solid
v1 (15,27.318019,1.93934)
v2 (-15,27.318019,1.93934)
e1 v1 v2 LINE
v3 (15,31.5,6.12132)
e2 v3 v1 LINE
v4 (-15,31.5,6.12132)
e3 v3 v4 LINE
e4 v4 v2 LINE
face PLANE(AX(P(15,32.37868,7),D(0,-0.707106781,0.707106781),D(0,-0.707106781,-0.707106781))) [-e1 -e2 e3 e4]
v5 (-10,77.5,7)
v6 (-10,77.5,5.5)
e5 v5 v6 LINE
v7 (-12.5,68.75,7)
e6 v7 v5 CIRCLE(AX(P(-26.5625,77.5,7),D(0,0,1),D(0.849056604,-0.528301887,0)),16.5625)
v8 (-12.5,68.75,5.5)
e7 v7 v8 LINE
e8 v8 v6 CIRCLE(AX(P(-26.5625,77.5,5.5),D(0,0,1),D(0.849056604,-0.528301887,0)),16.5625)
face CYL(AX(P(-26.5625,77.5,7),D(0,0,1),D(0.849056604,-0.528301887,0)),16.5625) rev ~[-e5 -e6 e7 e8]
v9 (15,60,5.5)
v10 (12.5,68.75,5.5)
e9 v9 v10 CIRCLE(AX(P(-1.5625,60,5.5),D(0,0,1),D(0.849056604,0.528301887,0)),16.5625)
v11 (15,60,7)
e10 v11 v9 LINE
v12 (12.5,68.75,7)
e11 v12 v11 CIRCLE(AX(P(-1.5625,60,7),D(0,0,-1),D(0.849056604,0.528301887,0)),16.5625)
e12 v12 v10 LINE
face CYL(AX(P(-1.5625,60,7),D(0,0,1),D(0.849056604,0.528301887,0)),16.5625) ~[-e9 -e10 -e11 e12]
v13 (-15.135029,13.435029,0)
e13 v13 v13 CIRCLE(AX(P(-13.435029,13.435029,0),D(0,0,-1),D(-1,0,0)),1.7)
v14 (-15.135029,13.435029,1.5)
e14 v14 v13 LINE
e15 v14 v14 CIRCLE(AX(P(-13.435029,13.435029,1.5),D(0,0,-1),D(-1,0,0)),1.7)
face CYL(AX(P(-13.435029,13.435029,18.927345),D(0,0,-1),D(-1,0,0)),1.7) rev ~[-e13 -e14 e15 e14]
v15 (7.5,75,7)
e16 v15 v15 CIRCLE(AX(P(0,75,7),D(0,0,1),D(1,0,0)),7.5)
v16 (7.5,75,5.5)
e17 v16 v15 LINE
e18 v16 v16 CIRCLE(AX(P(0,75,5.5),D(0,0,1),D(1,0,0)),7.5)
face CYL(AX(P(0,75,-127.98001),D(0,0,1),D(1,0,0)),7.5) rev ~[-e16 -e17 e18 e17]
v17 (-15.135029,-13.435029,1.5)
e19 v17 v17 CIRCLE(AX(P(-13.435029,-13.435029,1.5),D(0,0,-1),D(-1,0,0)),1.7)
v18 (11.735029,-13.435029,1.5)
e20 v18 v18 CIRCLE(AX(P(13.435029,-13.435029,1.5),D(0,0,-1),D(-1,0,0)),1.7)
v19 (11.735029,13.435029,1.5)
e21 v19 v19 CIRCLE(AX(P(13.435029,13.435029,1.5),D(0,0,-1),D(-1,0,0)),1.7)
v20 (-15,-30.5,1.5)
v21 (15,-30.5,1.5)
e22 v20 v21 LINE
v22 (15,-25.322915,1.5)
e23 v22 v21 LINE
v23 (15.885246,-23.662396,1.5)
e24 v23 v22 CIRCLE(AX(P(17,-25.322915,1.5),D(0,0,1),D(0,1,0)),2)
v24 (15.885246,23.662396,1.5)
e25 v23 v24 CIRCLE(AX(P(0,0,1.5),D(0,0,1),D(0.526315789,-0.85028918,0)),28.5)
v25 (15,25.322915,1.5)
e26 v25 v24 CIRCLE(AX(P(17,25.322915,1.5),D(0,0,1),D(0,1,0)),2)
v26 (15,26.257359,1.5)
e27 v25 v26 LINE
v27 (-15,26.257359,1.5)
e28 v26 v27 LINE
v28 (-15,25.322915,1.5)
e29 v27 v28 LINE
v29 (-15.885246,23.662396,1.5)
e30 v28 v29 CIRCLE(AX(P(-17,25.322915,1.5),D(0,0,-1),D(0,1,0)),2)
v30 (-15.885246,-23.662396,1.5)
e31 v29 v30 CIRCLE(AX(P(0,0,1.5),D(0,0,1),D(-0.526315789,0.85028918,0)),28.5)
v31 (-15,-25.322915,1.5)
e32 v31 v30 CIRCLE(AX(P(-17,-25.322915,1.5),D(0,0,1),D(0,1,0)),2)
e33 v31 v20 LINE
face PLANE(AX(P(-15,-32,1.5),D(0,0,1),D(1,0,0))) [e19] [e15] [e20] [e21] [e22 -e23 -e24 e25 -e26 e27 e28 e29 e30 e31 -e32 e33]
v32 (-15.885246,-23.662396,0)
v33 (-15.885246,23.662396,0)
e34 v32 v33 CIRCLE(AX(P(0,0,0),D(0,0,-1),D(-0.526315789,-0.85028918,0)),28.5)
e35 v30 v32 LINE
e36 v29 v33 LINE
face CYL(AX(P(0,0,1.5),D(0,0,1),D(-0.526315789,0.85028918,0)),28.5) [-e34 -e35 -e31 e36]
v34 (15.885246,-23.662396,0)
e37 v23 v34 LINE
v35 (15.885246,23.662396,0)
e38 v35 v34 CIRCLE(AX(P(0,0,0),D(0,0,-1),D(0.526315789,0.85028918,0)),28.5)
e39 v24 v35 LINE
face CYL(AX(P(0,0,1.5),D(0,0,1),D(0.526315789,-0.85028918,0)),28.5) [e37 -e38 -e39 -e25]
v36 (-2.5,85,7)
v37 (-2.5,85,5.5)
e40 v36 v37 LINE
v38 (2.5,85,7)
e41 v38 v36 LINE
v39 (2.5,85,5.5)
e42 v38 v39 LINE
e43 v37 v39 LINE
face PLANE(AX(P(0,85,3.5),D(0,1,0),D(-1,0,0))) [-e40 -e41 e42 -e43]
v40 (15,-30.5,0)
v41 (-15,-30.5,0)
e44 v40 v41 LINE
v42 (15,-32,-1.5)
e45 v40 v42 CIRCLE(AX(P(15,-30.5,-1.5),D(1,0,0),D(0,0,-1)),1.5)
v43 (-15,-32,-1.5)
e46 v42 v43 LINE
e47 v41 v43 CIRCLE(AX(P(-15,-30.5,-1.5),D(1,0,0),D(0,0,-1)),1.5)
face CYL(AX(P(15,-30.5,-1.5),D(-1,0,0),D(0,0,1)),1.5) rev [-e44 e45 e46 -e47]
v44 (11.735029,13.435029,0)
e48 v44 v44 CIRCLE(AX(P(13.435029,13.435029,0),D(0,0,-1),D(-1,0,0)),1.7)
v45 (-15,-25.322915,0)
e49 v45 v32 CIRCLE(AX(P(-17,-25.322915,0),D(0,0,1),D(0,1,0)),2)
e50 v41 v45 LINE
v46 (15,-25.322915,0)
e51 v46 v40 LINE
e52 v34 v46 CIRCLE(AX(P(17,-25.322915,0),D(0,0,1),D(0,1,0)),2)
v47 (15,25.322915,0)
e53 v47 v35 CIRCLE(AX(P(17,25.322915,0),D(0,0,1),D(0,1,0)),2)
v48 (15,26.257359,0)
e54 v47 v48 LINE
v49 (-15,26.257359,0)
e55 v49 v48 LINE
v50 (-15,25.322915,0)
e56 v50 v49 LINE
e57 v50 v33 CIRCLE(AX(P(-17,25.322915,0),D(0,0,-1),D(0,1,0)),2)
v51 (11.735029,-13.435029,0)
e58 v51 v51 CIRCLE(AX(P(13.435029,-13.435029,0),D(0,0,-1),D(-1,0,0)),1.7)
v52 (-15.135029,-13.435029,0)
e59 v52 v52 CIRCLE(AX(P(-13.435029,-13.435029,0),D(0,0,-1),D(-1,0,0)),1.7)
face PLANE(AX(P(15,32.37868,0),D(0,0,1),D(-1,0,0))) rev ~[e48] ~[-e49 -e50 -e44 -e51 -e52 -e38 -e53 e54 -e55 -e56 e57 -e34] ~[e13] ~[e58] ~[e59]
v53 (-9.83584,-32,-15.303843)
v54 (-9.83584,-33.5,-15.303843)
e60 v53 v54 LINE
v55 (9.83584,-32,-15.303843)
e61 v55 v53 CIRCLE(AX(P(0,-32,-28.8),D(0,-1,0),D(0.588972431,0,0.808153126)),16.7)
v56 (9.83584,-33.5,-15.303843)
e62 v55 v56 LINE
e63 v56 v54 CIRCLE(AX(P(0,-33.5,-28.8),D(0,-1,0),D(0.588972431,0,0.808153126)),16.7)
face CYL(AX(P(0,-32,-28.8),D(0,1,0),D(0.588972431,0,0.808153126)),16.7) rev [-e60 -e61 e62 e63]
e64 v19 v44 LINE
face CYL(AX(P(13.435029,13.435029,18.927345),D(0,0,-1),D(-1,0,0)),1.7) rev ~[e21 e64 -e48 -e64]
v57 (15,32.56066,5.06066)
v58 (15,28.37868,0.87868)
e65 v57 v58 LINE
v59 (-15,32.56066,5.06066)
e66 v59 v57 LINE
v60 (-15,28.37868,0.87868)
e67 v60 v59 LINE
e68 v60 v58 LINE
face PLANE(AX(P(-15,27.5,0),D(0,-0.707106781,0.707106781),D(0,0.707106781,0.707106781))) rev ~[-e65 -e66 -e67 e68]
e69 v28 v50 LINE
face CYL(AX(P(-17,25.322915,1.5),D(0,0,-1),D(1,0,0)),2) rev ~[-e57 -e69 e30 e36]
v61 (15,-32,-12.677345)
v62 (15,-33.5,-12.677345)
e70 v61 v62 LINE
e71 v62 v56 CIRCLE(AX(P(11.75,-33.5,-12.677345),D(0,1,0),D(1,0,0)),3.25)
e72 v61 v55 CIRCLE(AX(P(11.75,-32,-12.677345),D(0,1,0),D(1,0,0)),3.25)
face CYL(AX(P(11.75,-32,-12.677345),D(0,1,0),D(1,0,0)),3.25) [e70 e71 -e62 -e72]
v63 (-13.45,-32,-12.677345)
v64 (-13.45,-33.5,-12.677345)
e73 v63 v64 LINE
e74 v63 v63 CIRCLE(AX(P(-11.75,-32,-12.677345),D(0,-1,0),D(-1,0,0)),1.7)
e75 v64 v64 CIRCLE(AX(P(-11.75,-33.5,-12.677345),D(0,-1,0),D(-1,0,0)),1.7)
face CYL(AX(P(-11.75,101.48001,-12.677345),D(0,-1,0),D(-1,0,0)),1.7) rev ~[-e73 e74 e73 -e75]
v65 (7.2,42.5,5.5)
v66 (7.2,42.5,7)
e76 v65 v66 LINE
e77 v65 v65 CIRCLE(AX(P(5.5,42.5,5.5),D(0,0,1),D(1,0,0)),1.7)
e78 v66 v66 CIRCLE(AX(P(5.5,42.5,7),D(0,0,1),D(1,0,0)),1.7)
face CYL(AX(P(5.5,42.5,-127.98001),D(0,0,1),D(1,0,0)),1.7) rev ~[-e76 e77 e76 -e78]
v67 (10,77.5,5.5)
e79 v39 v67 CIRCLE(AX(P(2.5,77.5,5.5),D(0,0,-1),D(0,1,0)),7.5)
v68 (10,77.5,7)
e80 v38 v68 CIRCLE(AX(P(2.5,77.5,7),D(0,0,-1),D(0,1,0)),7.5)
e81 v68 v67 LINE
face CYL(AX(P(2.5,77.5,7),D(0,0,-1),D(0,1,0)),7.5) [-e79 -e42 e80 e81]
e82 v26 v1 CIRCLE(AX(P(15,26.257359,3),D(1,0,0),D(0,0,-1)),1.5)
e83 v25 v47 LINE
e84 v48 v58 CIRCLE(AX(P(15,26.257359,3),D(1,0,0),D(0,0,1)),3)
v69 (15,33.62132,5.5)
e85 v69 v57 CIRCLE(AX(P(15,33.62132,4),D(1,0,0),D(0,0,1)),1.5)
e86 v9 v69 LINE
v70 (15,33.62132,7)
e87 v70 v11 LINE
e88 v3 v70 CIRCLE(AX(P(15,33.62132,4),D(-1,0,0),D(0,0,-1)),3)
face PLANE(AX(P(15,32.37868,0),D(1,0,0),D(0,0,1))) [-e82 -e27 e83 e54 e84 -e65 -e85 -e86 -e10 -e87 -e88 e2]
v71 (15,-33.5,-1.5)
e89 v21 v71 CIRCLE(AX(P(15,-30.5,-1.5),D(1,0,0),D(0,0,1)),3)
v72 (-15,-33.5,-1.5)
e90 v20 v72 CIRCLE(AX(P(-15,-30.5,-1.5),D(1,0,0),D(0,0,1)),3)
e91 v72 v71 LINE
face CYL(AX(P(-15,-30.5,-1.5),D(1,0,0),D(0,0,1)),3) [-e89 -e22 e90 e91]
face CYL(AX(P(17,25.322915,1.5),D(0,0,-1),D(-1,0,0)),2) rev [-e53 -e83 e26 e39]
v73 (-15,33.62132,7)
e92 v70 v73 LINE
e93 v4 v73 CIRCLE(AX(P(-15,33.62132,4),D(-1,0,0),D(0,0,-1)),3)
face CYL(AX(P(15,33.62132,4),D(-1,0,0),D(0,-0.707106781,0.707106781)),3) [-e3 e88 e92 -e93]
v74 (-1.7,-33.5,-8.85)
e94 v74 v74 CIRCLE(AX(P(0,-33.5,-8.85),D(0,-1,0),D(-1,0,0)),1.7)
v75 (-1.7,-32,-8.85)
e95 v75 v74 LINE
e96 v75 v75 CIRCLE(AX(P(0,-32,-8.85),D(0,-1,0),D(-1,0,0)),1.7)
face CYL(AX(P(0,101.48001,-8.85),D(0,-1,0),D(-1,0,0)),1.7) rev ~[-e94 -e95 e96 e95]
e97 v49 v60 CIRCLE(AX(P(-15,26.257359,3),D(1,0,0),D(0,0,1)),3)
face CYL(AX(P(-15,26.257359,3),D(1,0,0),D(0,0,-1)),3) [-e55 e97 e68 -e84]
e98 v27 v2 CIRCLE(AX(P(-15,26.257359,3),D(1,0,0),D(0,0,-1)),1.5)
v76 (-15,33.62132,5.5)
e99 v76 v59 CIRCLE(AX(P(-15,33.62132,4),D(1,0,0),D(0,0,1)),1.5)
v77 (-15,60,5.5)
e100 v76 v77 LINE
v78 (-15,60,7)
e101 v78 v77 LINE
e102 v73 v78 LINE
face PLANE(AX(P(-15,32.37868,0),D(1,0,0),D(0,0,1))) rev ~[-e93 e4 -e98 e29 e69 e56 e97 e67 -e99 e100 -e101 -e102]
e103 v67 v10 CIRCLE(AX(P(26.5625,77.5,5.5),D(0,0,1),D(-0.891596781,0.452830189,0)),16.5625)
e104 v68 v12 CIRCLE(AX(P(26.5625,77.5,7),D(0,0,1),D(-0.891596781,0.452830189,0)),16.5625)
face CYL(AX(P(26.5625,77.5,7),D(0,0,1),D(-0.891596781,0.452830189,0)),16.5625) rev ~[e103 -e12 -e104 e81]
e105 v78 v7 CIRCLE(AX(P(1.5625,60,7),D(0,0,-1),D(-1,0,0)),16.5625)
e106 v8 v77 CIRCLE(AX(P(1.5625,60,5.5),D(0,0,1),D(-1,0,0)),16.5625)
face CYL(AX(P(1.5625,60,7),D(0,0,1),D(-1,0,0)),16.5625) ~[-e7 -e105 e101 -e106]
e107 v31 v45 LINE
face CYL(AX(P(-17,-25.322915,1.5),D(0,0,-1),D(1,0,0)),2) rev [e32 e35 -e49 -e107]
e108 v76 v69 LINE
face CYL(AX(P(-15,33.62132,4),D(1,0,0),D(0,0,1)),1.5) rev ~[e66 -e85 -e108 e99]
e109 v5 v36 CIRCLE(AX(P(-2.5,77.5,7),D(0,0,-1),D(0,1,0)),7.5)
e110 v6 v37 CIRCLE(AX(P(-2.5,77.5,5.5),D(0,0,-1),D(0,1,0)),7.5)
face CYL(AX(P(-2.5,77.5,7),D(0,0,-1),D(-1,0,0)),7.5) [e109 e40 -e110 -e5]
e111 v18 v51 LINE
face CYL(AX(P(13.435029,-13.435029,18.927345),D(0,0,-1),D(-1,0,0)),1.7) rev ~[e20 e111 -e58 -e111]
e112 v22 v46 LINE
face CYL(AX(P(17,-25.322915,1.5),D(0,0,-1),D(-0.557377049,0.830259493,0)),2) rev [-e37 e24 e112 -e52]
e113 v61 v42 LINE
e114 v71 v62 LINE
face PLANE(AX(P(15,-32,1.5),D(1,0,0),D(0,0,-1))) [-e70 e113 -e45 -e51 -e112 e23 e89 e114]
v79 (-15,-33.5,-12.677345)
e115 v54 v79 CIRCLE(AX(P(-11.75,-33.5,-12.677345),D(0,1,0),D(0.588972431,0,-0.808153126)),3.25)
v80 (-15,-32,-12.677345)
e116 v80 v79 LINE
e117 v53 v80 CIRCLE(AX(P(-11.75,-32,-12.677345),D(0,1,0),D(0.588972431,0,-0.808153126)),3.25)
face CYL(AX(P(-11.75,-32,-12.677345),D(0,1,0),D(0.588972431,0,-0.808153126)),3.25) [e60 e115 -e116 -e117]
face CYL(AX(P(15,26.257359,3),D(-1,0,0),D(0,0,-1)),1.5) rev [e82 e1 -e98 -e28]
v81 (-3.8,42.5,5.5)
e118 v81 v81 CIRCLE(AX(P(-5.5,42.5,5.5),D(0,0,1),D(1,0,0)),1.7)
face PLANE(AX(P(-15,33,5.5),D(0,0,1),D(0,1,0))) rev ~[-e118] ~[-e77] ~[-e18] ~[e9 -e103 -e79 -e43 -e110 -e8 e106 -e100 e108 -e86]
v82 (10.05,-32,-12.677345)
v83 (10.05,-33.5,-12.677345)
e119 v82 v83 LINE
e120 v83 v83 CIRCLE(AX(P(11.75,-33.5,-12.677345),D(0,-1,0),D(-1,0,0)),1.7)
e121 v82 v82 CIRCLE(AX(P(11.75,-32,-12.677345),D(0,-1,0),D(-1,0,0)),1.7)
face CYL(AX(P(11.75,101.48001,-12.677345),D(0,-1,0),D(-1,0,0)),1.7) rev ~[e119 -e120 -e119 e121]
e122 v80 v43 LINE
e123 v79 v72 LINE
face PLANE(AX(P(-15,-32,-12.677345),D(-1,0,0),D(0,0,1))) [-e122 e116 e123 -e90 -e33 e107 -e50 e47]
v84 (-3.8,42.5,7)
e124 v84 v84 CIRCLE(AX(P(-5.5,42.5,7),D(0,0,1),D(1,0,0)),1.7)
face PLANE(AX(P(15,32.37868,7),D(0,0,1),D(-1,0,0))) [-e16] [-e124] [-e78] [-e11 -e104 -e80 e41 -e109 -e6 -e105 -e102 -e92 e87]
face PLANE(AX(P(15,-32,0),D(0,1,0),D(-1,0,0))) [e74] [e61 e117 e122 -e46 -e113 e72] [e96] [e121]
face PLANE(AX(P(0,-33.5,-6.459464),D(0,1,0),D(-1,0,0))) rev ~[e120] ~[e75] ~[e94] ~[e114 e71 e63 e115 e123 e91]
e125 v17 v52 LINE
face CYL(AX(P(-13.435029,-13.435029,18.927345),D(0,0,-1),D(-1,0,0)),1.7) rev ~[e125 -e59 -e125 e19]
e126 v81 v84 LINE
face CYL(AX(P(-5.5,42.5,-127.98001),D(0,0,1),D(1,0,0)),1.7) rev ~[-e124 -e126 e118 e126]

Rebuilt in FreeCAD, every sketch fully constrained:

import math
import FreeCAD as App
import Part
import Sketcher
Q = App.Units.Quantity


def edges_at(feature, points):
    """Names of the edges that pass closest to the given points."""
    edges = feature.Shape.Edges
    near = lambda p: min(range(len(edges)), key=lambda i: edges[i].distToShape(Part.Vertex(*p))[0])
    return sorted({f"Edge{near(p) + 1}" for p in points})


def add_polygon(sketch, points):
    """Adds a closed chain of lines whose ends are joined by coincident constraints."""
    first, n = sketch.GeometryCount, len(points)
    for a, b in zip(points, points[1:] + points[:1]):
        sketch.addGeometry(Part.LineSegment(App.Vector(*a, 0), App.Vector(*b, 0)), False)
    for i in range(n):
        sketch.addConstraint(Sketcher.Constraint("Coincident", first + i, 2, first + (i + 1) % n, 1))

doc = App.newDocument("Part")
body = doc.addObject("PartDesign::Body", "Body")

# Sketch on YZ plane
sketch1 = body.newObject("Sketcher::SketchObject", "Sketch")
sketch1.AttachmentSupport = (doc.getObject("YZ_Plane"), [""])
sketch1.MapMode = "FlatFace"
sketch1.AttachmentOffset = App.Placement(App.Vector(0, 0, 15), App.Rotation())
add_polygon(sketch1, [(32.37868, 7), (26.87868, 1.5), (32.37868, 1.5)])  # lines 0-2
sketch1.addConstraint([
    Sketcher.Constraint("Horizontal", 1),
    Sketcher.Constraint("Vertical", 2),
    Sketcher.Constraint("Equal", 1, 2),
    Sketcher.Constraint("DistanceX", 1, 1, 1, 2, Q("5.5 mm")),
    Sketcher.Constraint("DistanceY", -1, 1, 2, 2, Q("7 mm")),
    Sketcher.Constraint("DistanceX", -1, 1, 0, 2, Q("26.87868 mm")),
])
pad1 = body.newObject("PartDesign::Pad", "Pad")
pad1.Profile = sketch1
pad1.Length = 30
pad1.Reversed = True

# Sketch on XY plane
sketch2 = body.newObject("Sketcher::SketchObject", "Sketch001")
sketch2.AttachmentSupport = (doc.getObject("XY_Plane"), [""])
sketch2.MapMode = "FlatFace"
sketch2.AttachmentOffset = App.Placement(App.Vector(0, 0, 1.5), App.Rotation())
sketch2.addGeometry([
    Part.LineSegment(App.Vector(15, 32.37868, 0), App.Vector(15, 24.233242, 0)),  # 0
    Part.ArcOfCircle(Part.Circle(App.Vector(0, 0, 0), App.Vector(0, 0, 1), 28.5), math.radians(-58.243136), math.radians(58.243136)),  # 1
    Part.LineSegment(App.Vector(15, -24.233242, 0), App.Vector(-15, -24.233242, 0)),  # 2
    Part.ArcOfCircle(Part.Circle(App.Vector(0, 0, 0), App.Vector(0, 0, 1), 28.5), math.radians(121.756864), math.radians(238.243136)),  # 3
    Part.LineSegment(App.Vector(-15, 24.233242, 0), App.Vector(-15, 32.37868, 0)),  # 4
    Part.LineSegment(App.Vector(-15, 32.37868, 0), App.Vector(15, 32.37868, 0)),  # 5
], False)
sketch2.addConstraint([
    Sketcher.Constraint("Coincident", 0, 2, 1, 2),
    Sketcher.Constraint("Coincident", 1, 1, 2, 1),
    Sketcher.Constraint("Coincident", 2, 2, 3, 2),
    Sketcher.Constraint("Coincident", 3, 1, 4, 1),
    Sketcher.Constraint("Coincident", 4, 2, 5, 1),
    Sketcher.Constraint("Coincident", 5, 2, 0, 1),
    Sketcher.Constraint("Vertical", 0),
    Sketcher.Constraint("Horizontal", 2),
    Sketcher.Constraint("Vertical", 4),
    Sketcher.Constraint("Horizontal", 5),
    Sketcher.Constraint("Coincident", 1, 3, -1, 1),
    Sketcher.Constraint("Coincident", 3, 3, -1, 1),
    Sketcher.Constraint("Equal", 1, 3),
    Sketcher.Constraint("Horizontal", 0, 2, 3, 1),
    Sketcher.Constraint("Vertical", 0, 2, 1, 1),
    Sketcher.Constraint("Radius", 1, Q("28.5 mm")),
    Sketcher.Constraint("DistanceX", 2, 2, 2, 1, Q("30 mm")),
    Sketcher.Constraint("DistanceY", 0, 2, 0, 1, Q("8.145438 mm")),
])
pad2 = body.newObject("PartDesign::Pad", "Pad001")
pad2.Profile = sketch2
pad2.Length = 14.177345
pad2.Reversed = True

# Sketch on XZ plane
sketch3 = body.newObject("Sketcher::SketchObject", "Sketch002")
sketch3.AttachmentSupport = (doc.getObject("XZ_Plane"), [""])
sketch3.MapMode = "FlatFace"
sketch3.AttachmentOffset = App.Placement(App.Vector(0, 0, 24.233242), App.Rotation())
add_polygon(sketch3, [(-15, 1.5), (-15, -12.677345), (15, -12.677345), (15, 1.5)])  # lines 0-3
sketch3.addConstraint([
    Sketcher.Constraint("Vertical", 0),
    Sketcher.Constraint("Horizontal", 1),
    Sketcher.Constraint("Vertical", 2),
    Sketcher.Constraint("Horizontal", 3),
    Sketcher.Constraint("DistanceX", 1, 1, 1, 2, Q("30 mm")),
    Sketcher.Constraint("DistanceX", 0, 2, -1, 1, Q("15 mm")),
    Sketcher.Constraint("DistanceY", -1, 1, 2, 2, Q("1.5 mm")),
    Sketcher.Constraint("DistanceY", 0, 2, 0, 1, Q("14.177345 mm")),
])
pad3 = body.newObject("PartDesign::Pad", "Pad002")
pad3.Profile = sketch3
pad3.Length = 7.766758

# Sketch on XZ plane
sketch4 = body.newObject("Sketcher::SketchObject", "Sketch003")
sketch4.AttachmentSupport = (doc.getObject("XZ_Plane"), [""])
sketch4.MapMode = "FlatFace"
sketch4.AttachmentOffset = App.Placement(App.Vector(0, 0, 32), App.Rotation())
sketch4.addGeometry([
    Part.LineSegment(App.Vector(15, -12.677345, 0), App.Vector(15, 1.5, 0)),  # 0
    Part.LineSegment(App.Vector(15, 1.5, 0), App.Vector(-15, 1.5, 0)),  # 1
    Part.LineSegment(App.Vector(-15, 1.5, 0), App.Vector(-15, -12.677345, 0)),  # 2
    Part.ArcOfCircle(Part.Circle(App.Vector(-11.75, -12.677345, 0), App.Vector(0, 0, 1), 3.25), math.radians(180), math.radians(306.084123)),  # 3
    Part.ArcOfCircle(Part.Circle(App.Vector(0, -28.8, 0), App.Vector(0, 0, 1), 16.7), math.radians(53.915877), math.radians(126.084123)),  # 4
    Part.ArcOfCircle(Part.Circle(App.Vector(11.75, -12.677345, 0), App.Vector(0, 0, 1), 3.25), math.radians(-126.084123), math.radians(0)),  # 5
], False)
sketch4.addConstraint([
    Sketcher.Constraint("Coincident", 0, 2, 1, 1),
    Sketcher.Constraint("Coincident", 1, 2, 2, 1),
    Sketcher.Constraint("Tangent", 2, 2, 3, 1),
    Sketcher.Constraint("Tangent", 3, 2, 4, 2),
    Sketcher.Constraint("Tangent", 4, 1, 5, 1),
    Sketcher.Constraint("Tangent", 5, 2, 0, 1),
    Sketcher.Constraint("Vertical", 0),
    Sketcher.Constraint("Horizontal", 1),
    Sketcher.Constraint("Vertical", 2),
    Sketcher.Constraint("Equal", 3, 5),
    Sketcher.Constraint("Symmetric", 3, 3, 5, 3, -2),
    Sketcher.Constraint("Radius", 4, Q("16.7 mm")),
    Sketcher.Constraint("DistanceX", 1, 2, 1, 1, Q("30 mm")),
    Sketcher.Constraint("Radius", 3, Q("3.25 mm")),
    Sketcher.Constraint("DistanceY", 4, 3, -1, 1, Q("28.8 mm")),
    Sketcher.Constraint("DistanceY", -1, 1, 0, 2, Q("1.5 mm")),
])
pad4 = body.newObject("PartDesign::Pad", "Pad003")
pad4.Profile = sketch4
pad4.Length = 1.5

# Sketch on XY plane
sketch5 = body.newObject("Sketcher::SketchObject", "Sketch004")
sketch5.AttachmentSupport = (doc.getObject("XY_Plane"), [""])
sketch5.MapMode = "FlatFace"
sketch5.AttachmentOffset = App.Placement(App.Vector(0, 0, -12.1), App.Rotation())
sketch5.addGeometry([
    Part.LineSegment(App.Vector(-15, 24.233242, 0), App.Vector(-15, 32.37868, 0)),  # 0
    Part.LineSegment(App.Vector(-15, 32.37868, 0), App.Vector(15, 32.37868, 0)),  # 1
    Part.LineSegment(App.Vector(15, 32.37868, 0), App.Vector(15, 24.233242, 0)),  # 2
    Part.ArcOfCircle(Part.Circle(App.Vector(0, 0, 0), App.Vector(0, 0, 1), 28.5), math.radians(-58.243136), math.radians(58.243136)),  # 3
    Part.LineSegment(App.Vector(15, -24.233242, 0), App.Vector(15, -32, 0)),  # 4
    Part.LineSegment(App.Vector(15, -32, 0), App.Vector(-15, -32, 0)),  # 5
    Part.LineSegment(App.Vector(-15, -32, 0), App.Vector(-15, -24.233242, 0)),  # 6
    Part.ArcOfCircle(Part.Circle(App.Vector(0, 0, 0), App.Vector(0, 0, 1), 28.5), math.radians(121.756864), math.radians(238.243136)),  # 7
], False)
sketch5.addConstraint([
    Sketcher.Constraint("Coincident", 0, 2, 1, 1),
    Sketcher.Constraint("Coincident", 1, 2, 2, 1),
    Sketcher.Constraint("Coincident", 2, 2, 3, 2),
    Sketcher.Constraint("Coincident", 3, 1, 4, 1),
    Sketcher.Constraint("Coincident", 4, 2, 5, 1),
    Sketcher.Constraint("Coincident", 5, 2, 6, 1),
    Sketcher.Constraint("Coincident", 6, 2, 7, 2),
    Sketcher.Constraint("Coincident", 7, 1, 0, 1),
    Sketcher.Constraint("Vertical", 0),
    Sketcher.Constraint("Horizontal", 1),
    Sketcher.Constraint("Vertical", 2),
    Sketcher.Constraint("Vertical", 4),
    Sketcher.Constraint("Horizontal", 5),
    Sketcher.Constraint("Vertical", 6),
    Sketcher.Constraint("Coincident", 3, 3, -1, 1),
    Sketcher.Constraint("Coincident", 7, 3, -1, 1),
    Sketcher.Constraint("Equal", 3, 7),
    Sketcher.Constraint("Horizontal", 3, 1, 6, 2),
    Sketcher.Constraint("Horizontal", 2, 2, 7, 1),
    Sketcher.Constraint("Vertical", 2, 2, 3, 1),
    Sketcher.Constraint("Radius", 3, Q("28.5 mm")),
    Sketcher.Constraint("DistanceX", 1, 1, 1, 2, Q("30 mm")),
    Sketcher.Constraint("DistanceY", 4, 2, -1, 1, Q("32 mm")),
    Sketcher.Constraint("DistanceY", 0, 1, 0, 2, Q("8.145438 mm")),
])
pocket1 = body.newObject("PartDesign::Pocket", "Pocket")
pocket1.Profile = sketch5
pocket1.Length = 0.577345

# Sketch on XY plane
sketch6 = body.newObject("Sketcher::SketchObject", "Sketch005")
sketch6.AttachmentSupport = (doc.getObject("XY_Plane"), [""])
sketch6.MapMode = "FlatFace"
sketch6.addGeometry([
    Part.LineSegment(App.Vector(-15, 24.233242, 0), App.Vector(-15, 32.37868, 0)),  # 0
    Part.LineSegment(App.Vector(-15, 32.37868, 0), App.Vector(15, 32.37868, 0)),  # 1
    Part.LineSegment(App.Vector(15, 32.37868, 0), App.Vector(15, 24.233242, 0)),  # 2
    Part.ArcOfCircle(Part.Circle(App.Vector(0, 0, 0), App.Vector(0, 0, 1), 28.5), math.radians(-58.243136), math.radians(58.243136)),  # 3
    Part.LineSegment(App.Vector(15, -24.233242, 0), App.Vector(15, -32, 0)),  # 4
    Part.LineSegment(App.Vector(15, -32, 0), App.Vector(-15, -32, 0)),  # 5
    Part.LineSegment(App.Vector(-15, -32, 0), App.Vector(-15, -24.233242, 0)),  # 6
    Part.ArcOfCircle(Part.Circle(App.Vector(0, 0, 0), App.Vector(0, 0, 1), 28.5), math.radians(121.756864), math.radians(238.243136)),  # 7
], False)
sketch6.addConstraint([
    Sketcher.Constraint("Coincident", 0, 2, 1, 1),
    Sketcher.Constraint("Coincident", 1, 2, 2, 1),
    Sketcher.Constraint("Coincident", 2, 2, 3, 2),
    Sketcher.Constraint("Coincident", 3, 1, 4, 1),
    Sketcher.Constraint("Coincident", 4, 2, 5, 1),
    Sketcher.Constraint("Coincident", 5, 2, 6, 1),
    Sketcher.Constraint("Coincident", 6, 2, 7, 2),
    Sketcher.Constraint("Coincident", 7, 1, 0, 1),
    Sketcher.Constraint("Vertical", 0),
    Sketcher.Constraint("Horizontal", 1),
    Sketcher.Constraint("Vertical", 2),
    Sketcher.Constraint("Vertical", 4),
    Sketcher.Constraint("Horizontal", 5),
    Sketcher.Constraint("Vertical", 6),
    Sketcher.Constraint("Coincident", 3, 3, -1, 1),
    Sketcher.Constraint("Coincident", 7, 3, -1, 1),
    Sketcher.Constraint("Equal", 3, 7),
    Sketcher.Constraint("Horizontal", 3, 1, 6, 2),
    Sketcher.Constraint("Horizontal", 2, 2, 7, 1),
    Sketcher.Constraint("Vertical", 2, 2, 3, 1),
    Sketcher.Constraint("Radius", 3, Q("28.5 mm")),
    Sketcher.Constraint("DistanceX", 1, 1, 1, 2, Q("30 mm")),
    Sketcher.Constraint("DistanceY", 4, 2, -1, 1, Q("32 mm")),
    Sketcher.Constraint("DistanceY", 0, 1, 0, 2, Q("8.145438 mm")),
])
pocket2 = body.newObject("PartDesign::Pocket", "Pocket001")
pocket2.Profile = sketch6
pocket2.Length = 12.1

# Sketch on XZ plane
sketch7 = body.newObject("Sketcher::SketchObject", "Sketch006")
sketch7.AttachmentSupport = (doc.getObject("XZ_Plane"), [""])
sketch7.MapMode = "FlatFace"
sketch7.AttachmentOffset = App.Placement(App.Vector(0, 0, -32.37868), App.Rotation())
add_polygon(sketch7, [(15, 7), (15, 0), (-15, 0), (-15, 7)])  # lines 0-3
sketch7.addConstraint([
    Sketcher.Constraint("Vertical", 0),
    Sketcher.Constraint("Horizontal", 1),
    Sketcher.Constraint("Vertical", 2),
    Sketcher.Constraint("Horizontal", 3),
    Sketcher.Constraint("Symmetric", 0, 2, 1, 2, -1, 1),
    Sketcher.Constraint("DistanceX", 1, 2, 1, 1, Q("30 mm")),
    Sketcher.Constraint("DistanceY", 0, 2, 0, 1, Q("7 mm")),
])
pad5 = body.newObject("PartDesign::Pad", "Pad004")
pad5.Profile = sketch7
pad5.Length = 52.62132
pad5.Reversed = True

# Sketch on YZ plane
sketch8 = body.newObject("Sketcher::SketchObject", "Sketch007")
sketch8.AttachmentSupport = (doc.getObject("YZ_Plane"), [""])
sketch8.MapMode = "FlatFace"
sketch8.AttachmentOffset = App.Placement(App.Vector(0, 0, -15), App.Rotation())
add_polygon(sketch8, [(27.5, 0), (33, 5.5), (85, 5.5), (85, 0)])  # lines 0-3
sketch8.addConstraint([
    Sketcher.Constraint("Horizontal", 1),
    Sketcher.Constraint("Vertical", 2),
    Sketcher.Constraint("Horizontal", 3),
    Sketcher.Constraint("PointOnObject", 2, 2, -1),
    Sketcher.Constraint("DistanceX", 1, 1, 1, 2, Q("52 mm")),
    Sketcher.Constraint("Angle", 0, Q("45 deg")),
    Sketcher.Constraint("DistanceX", 3, 2, 3, 1, Q("57.5 mm")),
    Sketcher.Constraint("DistanceX", -1, 1, 0, 2, Q("33 mm")),
])
pocket3 = body.newObject("PartDesign::Pocket", "Pocket002")
pocket3.Profile = sketch8
pocket3.Type = "ThroughAll"
pocket3.Reversed = True

# Sketch on XY plane
sketch9 = body.newObject("Sketcher::SketchObject", "Sketch008")
sketch9.AttachmentSupport = (doc.getObject("XY_Plane"), [""])
sketch9.MapMode = "FlatFace"
sketch9.AttachmentOffset = App.Placement(App.Vector(0, 0, 7), App.Rotation())
sketch9.addGeometry([
    Part.LineSegment(App.Vector(-11.795428, 85, 0), App.Vector(-15, 85, 0)),
    Part.LineSegment(App.Vector(-15, 85, 0), App.Vector(-15, 60, 0)),
    Part.ArcOfCircle(Part.Circle(App.Vector(1.5625, 60, 0), App.Vector(0, 0, 1), 16.5625), math.radians(148.109208), math.radians(180)),
    Part.ArcOfCircle(Part.Circle(App.Vector(-26.5625, 77.5, 0), App.Vector(0, 0, 1), 16.5625), math.radians(-31.890792), math.radians(26.925411)),
], False)
sketch9.addConstraint([
    Sketcher.Constraint("Coincident", 0, 2, 1, 1),
    Sketcher.Constraint("Tangent", 1, 2, 2, 2),
    Sketcher.Constraint("Tangent", 2, 1, 3, 1),
    Sketcher.Constraint("Coincident", 3, 2, 0, 1),
    Sketcher.Constraint("Horizontal", 0),
    Sketcher.Constraint("Vertical", 1),
    Sketcher.Constraint("Equal", 2, 3),
    Sketcher.Constraint("DistanceY", 1, 2, 1, 1, Q("25 mm")),
    Sketcher.Constraint("DistanceY", -1, 1, 2, 3, Q("60 mm")),
    Sketcher.Constraint("DistanceX", 0, 2, -1, 1, Q("15 mm")),
    Sketcher.Constraint("DistanceY", -1, 1, 3, 3, Q("77.5 mm")),
    Sketcher.Constraint("DistanceX", 2, 1, -1, 1, Q("12.5 mm")),
])
pocket4 = body.newObject("PartDesign::Pocket", "Pocket003")
pocket4.Profile = sketch9
pocket4.Type = "ThroughAll"

# Sketch on XY plane
sketch10 = body.newObject("Sketcher::SketchObject", "Sketch009")
sketch10.AttachmentSupport = (doc.getObject("XY_Plane"), [""])
sketch10.MapMode = "FlatFace"
sketch10.AttachmentOffset = App.Placement(App.Vector(0, 0, 7), App.Rotation())
sketch10.addGeometry([
    Part.LineSegment(App.Vector(15, 60, 0), App.Vector(15, 85, 0)),
    Part.LineSegment(App.Vector(15, 85, 0), App.Vector(11.795428, 85, 0)),
    Part.ArcOfCircle(Part.Circle(App.Vector(26.5625, 77.5, 0), App.Vector(0, 0, 1), 16.5625), math.radians(153.074589), math.radians(211.890792)),
    Part.ArcOfCircle(Part.Circle(App.Vector(-1.5625, 60, 0), App.Vector(0, 0, 1), 16.5625), math.radians(0), math.radians(31.890792)),
], False)
sketch10.addConstraint([
    Sketcher.Constraint("Coincident", 0, 2, 1, 1),
    Sketcher.Constraint("Coincident", 1, 2, 2, 1),
    Sketcher.Constraint("Tangent", 2, 2, 3, 2),
    Sketcher.Constraint("Tangent", 3, 1, 0, 1),
    Sketcher.Constraint("Vertical", 0),
    Sketcher.Constraint("Horizontal", 1),
    Sketcher.Constraint("Equal", 2, 3),
    Sketcher.Constraint("DistanceY", 0, 1, 0, 2, Q("25 mm")),
    Sketcher.Constraint("DistanceY", -1, 1, 3, 3, Q("60 mm")),
    Sketcher.Constraint("DistanceX", -1, 1, 0, 2, Q("15 mm")),
    Sketcher.Constraint("DistanceY", -1, 1, 2, 3, Q("77.5 mm")),
    Sketcher.Constraint("DistanceX", -1, 1, 2, 2, Q("12.5 mm")),
])
pocket5 = body.newObject("PartDesign::Pocket", "Pocket004")
pocket5.Profile = sketch10
pocket5.Type = "ThroughAll"

# Sketch on XY plane
sketch11 = body.newObject("Sketcher::SketchObject", "Sketch010")
sketch11.AttachmentSupport = (doc.getObject("XY_Plane"), [""])
sketch11.MapMode = "FlatFace"
sketch11.AttachmentOffset = App.Placement(App.Vector(0, 0, 5.5), App.Rotation())
sketch11.addGeometry([
    Part.Circle(App.Vector(-5.5, 42.5, 0), App.Vector(0, 0, 1), 1.7),
    Part.Circle(App.Vector(5.5, 42.5, 0), App.Vector(0, 0, 1), 1.7),
], False)
sketch11.addConstraint([
    Sketcher.Constraint("Equal", 0, 1),
    Sketcher.Constraint("Symmetric", 0, 3, 1, 3, -2),
    Sketcher.Constraint("Diameter", 0, Q("3.4 mm")),
    Sketcher.Constraint("DistanceX", 0, 3, 1, 3, Q("11 mm")),
    Sketcher.Constraint("DistanceY", -1, 1, 0, 3, Q("42.5 mm")),
])
doc.recompute()
hole = body.newObject("PartDesign::Hole", "Hole")
hole.Profile = sketch11
hole.ThreadType = "None"
hole.Diameter = 3.4
hole.DepthType = "ThroughAll"
hole.Reversed = True

# Sketch on XZ plane
sketch12 = body.newObject("Sketcher::SketchObject", "Sketch011")
sketch12.AttachmentSupport = (doc.getObject("XZ_Plane"), [""])
sketch12.MapMode = "FlatFace"
sketch12.AttachmentOffset = App.Placement(App.Vector(0, 0, 32), App.Rotation())
sketch12.addGeometry([
    Part.Circle(App.Vector(-11.75, -12.677345, 0), App.Vector(0, 0, 1), 1.7),
    Part.Circle(App.Vector(0, -8.85, 0), App.Vector(0, 0, 1), 1.7),
    Part.Circle(App.Vector(11.75, -12.677345, 0), App.Vector(0, 0, 1), 1.7),
], False)
sketch12.addConstraint([
    Sketcher.Constraint("Equal", 0, 1),
    Sketcher.Constraint("Equal", 1, 2),
    Sketcher.Constraint("Symmetric", 0, 3, 2, 3, -2),
    Sketcher.Constraint("PointOnObject", 1, 3, -2),
    Sketcher.Constraint("Diameter", 0, Q("3.4 mm")),
    Sketcher.Constraint("DistanceX", 0, 3, 2, 3, Q("23.5 mm")),
    Sketcher.Constraint("DistanceY", 1, 3, -1, 1, Q("8.85 mm")),
    Sketcher.Constraint("DistanceY", 0, 3, -1, 1, Q("12.677345 mm")),
])
doc.recompute()
hole2 = body.newObject("PartDesign::Hole", "Hole001")
hole2.Profile = sketch12
hole2.ThreadType = "None"
hole2.Diameter = 3.4
hole2.DepthType = "ThroughAll"
hole2.Reversed = True

# Sketch on XY plane
sketch13 = body.newObject("Sketcher::SketchObject", "Sketch012")
sketch13.AttachmentSupport = (doc.getObject("XY_Plane"), [""])
sketch13.MapMode = "FlatFace"
sketch13.AttachmentOffset = App.Placement(App.Vector(0, 0, 5.5), App.Rotation())
sketch13.addGeometry(Part.Circle(App.Vector(0, 75, 0), App.Vector(0, 0, 1), 7.5), False)
sketch13.addConstraint([
    Sketcher.Constraint("PointOnObject", 0, 3, -2),
    Sketcher.Constraint("Diameter", 0, Q("15 mm")),
    Sketcher.Constraint("DistanceY", -1, 1, 0, 3, Q("75 mm")),
])
doc.recompute()
hole3 = body.newObject("PartDesign::Hole", "Hole002")
hole3.Profile = sketch13
hole3.ThreadType = "None"
hole3.Diameter = 15
hole3.DepthType = "ThroughAll"
hole3.Reversed = True

# Sketch on XY plane
sketch14 = body.newObject("Sketcher::SketchObject", "Sketch013")
sketch14.AttachmentSupport = (doc.getObject("XY_Plane"), [""])
sketch14.MapMode = "FlatFace"
sketch14.AttachmentOffset = App.Placement(App.Vector(0, 0, 1.5), App.Rotation())
sketch14.addGeometry([
    Part.Circle(App.Vector(-13.435029, -13.435029, 0), App.Vector(0, 0, 1), 1.7),
    Part.Circle(App.Vector(-13.435029, 13.435029, 0), App.Vector(0, 0, 1), 1.7),
    Part.Circle(App.Vector(13.435029, -13.435029, 0), App.Vector(0, 0, 1), 1.7),
    Part.Circle(App.Vector(13.435029, 13.435029, 0), App.Vector(0, 0, 1), 1.7),
], False)
sketch14.addConstraint([
    Sketcher.Constraint("Equal", 0, 1),
    Sketcher.Constraint("Equal", 1, 2),
    Sketcher.Constraint("Equal", 2, 3),
    Sketcher.Constraint("Symmetric", 1, 3, 2, 3, -1, 1),
    Sketcher.Constraint("Symmetric", 0, 3, 3, 3, -1, 1),
    Sketcher.Constraint("Symmetric", 0, 3, 2, 3, -2),
    Sketcher.Constraint("Diameter", 0, Q("3.4 mm")),
    Sketcher.Constraint("DistanceX", 0, 3, -1, 1, Q("13.435029 mm")),
    Sketcher.Constraint("DistanceY", 0, 3, -1, 1, Q("13.435029 mm")),
])
doc.recompute()
hole4 = body.newObject("PartDesign::Hole", "Hole003")
hole4.Profile = sketch14
hole4.ThreadType = "None"
hole4.Diameter = 3.4
hole4.DepthType = "Dimension"
hole4.Depth = 17.427345
hole4.DrillPoint = "Flat"
doc.recompute()

fillet = body.newObject("PartDesign::Fillet", "Fillet")
fillet.Base = (hole4, edges_at(hole4, [(0, -32, 0), (0, 33, 5.5), (0, 26.879, 1.5)]))
fillet.Radius = 1.5
doc.recompute()

fillet2 = body.newObject("PartDesign::Fillet", "Fillet001")
fillet2.Base = (fillet, edges_at(fillet, [
    (-15, -24.233, 0.75),
    (15, -24.233, 0.75),
    (-15, 24.233, 0.75),
    (15, 24.233, 0.75),
]))
fillet2.Radius = 2
doc.recompute()

fillet3 = body.newObject("PartDesign::Fillet", "Fillet002")
fillet3.Base = (fillet2, edges_at(fillet2, [(0, 27.5, 0), (0, -33.5, 1.5), (0, 32.379, 7)]))
fillet3.Radius = 3
doc.recompute()

fillet4 = body.newObject("PartDesign::Fillet", "Fillet003")
fillet4.Base = (fillet3, edges_at(fillet3, [(-11.795, 85, 6.25), (11.795, 85, 6.25)]))
fillet4.Radius = 7.5

doc.recompute()
